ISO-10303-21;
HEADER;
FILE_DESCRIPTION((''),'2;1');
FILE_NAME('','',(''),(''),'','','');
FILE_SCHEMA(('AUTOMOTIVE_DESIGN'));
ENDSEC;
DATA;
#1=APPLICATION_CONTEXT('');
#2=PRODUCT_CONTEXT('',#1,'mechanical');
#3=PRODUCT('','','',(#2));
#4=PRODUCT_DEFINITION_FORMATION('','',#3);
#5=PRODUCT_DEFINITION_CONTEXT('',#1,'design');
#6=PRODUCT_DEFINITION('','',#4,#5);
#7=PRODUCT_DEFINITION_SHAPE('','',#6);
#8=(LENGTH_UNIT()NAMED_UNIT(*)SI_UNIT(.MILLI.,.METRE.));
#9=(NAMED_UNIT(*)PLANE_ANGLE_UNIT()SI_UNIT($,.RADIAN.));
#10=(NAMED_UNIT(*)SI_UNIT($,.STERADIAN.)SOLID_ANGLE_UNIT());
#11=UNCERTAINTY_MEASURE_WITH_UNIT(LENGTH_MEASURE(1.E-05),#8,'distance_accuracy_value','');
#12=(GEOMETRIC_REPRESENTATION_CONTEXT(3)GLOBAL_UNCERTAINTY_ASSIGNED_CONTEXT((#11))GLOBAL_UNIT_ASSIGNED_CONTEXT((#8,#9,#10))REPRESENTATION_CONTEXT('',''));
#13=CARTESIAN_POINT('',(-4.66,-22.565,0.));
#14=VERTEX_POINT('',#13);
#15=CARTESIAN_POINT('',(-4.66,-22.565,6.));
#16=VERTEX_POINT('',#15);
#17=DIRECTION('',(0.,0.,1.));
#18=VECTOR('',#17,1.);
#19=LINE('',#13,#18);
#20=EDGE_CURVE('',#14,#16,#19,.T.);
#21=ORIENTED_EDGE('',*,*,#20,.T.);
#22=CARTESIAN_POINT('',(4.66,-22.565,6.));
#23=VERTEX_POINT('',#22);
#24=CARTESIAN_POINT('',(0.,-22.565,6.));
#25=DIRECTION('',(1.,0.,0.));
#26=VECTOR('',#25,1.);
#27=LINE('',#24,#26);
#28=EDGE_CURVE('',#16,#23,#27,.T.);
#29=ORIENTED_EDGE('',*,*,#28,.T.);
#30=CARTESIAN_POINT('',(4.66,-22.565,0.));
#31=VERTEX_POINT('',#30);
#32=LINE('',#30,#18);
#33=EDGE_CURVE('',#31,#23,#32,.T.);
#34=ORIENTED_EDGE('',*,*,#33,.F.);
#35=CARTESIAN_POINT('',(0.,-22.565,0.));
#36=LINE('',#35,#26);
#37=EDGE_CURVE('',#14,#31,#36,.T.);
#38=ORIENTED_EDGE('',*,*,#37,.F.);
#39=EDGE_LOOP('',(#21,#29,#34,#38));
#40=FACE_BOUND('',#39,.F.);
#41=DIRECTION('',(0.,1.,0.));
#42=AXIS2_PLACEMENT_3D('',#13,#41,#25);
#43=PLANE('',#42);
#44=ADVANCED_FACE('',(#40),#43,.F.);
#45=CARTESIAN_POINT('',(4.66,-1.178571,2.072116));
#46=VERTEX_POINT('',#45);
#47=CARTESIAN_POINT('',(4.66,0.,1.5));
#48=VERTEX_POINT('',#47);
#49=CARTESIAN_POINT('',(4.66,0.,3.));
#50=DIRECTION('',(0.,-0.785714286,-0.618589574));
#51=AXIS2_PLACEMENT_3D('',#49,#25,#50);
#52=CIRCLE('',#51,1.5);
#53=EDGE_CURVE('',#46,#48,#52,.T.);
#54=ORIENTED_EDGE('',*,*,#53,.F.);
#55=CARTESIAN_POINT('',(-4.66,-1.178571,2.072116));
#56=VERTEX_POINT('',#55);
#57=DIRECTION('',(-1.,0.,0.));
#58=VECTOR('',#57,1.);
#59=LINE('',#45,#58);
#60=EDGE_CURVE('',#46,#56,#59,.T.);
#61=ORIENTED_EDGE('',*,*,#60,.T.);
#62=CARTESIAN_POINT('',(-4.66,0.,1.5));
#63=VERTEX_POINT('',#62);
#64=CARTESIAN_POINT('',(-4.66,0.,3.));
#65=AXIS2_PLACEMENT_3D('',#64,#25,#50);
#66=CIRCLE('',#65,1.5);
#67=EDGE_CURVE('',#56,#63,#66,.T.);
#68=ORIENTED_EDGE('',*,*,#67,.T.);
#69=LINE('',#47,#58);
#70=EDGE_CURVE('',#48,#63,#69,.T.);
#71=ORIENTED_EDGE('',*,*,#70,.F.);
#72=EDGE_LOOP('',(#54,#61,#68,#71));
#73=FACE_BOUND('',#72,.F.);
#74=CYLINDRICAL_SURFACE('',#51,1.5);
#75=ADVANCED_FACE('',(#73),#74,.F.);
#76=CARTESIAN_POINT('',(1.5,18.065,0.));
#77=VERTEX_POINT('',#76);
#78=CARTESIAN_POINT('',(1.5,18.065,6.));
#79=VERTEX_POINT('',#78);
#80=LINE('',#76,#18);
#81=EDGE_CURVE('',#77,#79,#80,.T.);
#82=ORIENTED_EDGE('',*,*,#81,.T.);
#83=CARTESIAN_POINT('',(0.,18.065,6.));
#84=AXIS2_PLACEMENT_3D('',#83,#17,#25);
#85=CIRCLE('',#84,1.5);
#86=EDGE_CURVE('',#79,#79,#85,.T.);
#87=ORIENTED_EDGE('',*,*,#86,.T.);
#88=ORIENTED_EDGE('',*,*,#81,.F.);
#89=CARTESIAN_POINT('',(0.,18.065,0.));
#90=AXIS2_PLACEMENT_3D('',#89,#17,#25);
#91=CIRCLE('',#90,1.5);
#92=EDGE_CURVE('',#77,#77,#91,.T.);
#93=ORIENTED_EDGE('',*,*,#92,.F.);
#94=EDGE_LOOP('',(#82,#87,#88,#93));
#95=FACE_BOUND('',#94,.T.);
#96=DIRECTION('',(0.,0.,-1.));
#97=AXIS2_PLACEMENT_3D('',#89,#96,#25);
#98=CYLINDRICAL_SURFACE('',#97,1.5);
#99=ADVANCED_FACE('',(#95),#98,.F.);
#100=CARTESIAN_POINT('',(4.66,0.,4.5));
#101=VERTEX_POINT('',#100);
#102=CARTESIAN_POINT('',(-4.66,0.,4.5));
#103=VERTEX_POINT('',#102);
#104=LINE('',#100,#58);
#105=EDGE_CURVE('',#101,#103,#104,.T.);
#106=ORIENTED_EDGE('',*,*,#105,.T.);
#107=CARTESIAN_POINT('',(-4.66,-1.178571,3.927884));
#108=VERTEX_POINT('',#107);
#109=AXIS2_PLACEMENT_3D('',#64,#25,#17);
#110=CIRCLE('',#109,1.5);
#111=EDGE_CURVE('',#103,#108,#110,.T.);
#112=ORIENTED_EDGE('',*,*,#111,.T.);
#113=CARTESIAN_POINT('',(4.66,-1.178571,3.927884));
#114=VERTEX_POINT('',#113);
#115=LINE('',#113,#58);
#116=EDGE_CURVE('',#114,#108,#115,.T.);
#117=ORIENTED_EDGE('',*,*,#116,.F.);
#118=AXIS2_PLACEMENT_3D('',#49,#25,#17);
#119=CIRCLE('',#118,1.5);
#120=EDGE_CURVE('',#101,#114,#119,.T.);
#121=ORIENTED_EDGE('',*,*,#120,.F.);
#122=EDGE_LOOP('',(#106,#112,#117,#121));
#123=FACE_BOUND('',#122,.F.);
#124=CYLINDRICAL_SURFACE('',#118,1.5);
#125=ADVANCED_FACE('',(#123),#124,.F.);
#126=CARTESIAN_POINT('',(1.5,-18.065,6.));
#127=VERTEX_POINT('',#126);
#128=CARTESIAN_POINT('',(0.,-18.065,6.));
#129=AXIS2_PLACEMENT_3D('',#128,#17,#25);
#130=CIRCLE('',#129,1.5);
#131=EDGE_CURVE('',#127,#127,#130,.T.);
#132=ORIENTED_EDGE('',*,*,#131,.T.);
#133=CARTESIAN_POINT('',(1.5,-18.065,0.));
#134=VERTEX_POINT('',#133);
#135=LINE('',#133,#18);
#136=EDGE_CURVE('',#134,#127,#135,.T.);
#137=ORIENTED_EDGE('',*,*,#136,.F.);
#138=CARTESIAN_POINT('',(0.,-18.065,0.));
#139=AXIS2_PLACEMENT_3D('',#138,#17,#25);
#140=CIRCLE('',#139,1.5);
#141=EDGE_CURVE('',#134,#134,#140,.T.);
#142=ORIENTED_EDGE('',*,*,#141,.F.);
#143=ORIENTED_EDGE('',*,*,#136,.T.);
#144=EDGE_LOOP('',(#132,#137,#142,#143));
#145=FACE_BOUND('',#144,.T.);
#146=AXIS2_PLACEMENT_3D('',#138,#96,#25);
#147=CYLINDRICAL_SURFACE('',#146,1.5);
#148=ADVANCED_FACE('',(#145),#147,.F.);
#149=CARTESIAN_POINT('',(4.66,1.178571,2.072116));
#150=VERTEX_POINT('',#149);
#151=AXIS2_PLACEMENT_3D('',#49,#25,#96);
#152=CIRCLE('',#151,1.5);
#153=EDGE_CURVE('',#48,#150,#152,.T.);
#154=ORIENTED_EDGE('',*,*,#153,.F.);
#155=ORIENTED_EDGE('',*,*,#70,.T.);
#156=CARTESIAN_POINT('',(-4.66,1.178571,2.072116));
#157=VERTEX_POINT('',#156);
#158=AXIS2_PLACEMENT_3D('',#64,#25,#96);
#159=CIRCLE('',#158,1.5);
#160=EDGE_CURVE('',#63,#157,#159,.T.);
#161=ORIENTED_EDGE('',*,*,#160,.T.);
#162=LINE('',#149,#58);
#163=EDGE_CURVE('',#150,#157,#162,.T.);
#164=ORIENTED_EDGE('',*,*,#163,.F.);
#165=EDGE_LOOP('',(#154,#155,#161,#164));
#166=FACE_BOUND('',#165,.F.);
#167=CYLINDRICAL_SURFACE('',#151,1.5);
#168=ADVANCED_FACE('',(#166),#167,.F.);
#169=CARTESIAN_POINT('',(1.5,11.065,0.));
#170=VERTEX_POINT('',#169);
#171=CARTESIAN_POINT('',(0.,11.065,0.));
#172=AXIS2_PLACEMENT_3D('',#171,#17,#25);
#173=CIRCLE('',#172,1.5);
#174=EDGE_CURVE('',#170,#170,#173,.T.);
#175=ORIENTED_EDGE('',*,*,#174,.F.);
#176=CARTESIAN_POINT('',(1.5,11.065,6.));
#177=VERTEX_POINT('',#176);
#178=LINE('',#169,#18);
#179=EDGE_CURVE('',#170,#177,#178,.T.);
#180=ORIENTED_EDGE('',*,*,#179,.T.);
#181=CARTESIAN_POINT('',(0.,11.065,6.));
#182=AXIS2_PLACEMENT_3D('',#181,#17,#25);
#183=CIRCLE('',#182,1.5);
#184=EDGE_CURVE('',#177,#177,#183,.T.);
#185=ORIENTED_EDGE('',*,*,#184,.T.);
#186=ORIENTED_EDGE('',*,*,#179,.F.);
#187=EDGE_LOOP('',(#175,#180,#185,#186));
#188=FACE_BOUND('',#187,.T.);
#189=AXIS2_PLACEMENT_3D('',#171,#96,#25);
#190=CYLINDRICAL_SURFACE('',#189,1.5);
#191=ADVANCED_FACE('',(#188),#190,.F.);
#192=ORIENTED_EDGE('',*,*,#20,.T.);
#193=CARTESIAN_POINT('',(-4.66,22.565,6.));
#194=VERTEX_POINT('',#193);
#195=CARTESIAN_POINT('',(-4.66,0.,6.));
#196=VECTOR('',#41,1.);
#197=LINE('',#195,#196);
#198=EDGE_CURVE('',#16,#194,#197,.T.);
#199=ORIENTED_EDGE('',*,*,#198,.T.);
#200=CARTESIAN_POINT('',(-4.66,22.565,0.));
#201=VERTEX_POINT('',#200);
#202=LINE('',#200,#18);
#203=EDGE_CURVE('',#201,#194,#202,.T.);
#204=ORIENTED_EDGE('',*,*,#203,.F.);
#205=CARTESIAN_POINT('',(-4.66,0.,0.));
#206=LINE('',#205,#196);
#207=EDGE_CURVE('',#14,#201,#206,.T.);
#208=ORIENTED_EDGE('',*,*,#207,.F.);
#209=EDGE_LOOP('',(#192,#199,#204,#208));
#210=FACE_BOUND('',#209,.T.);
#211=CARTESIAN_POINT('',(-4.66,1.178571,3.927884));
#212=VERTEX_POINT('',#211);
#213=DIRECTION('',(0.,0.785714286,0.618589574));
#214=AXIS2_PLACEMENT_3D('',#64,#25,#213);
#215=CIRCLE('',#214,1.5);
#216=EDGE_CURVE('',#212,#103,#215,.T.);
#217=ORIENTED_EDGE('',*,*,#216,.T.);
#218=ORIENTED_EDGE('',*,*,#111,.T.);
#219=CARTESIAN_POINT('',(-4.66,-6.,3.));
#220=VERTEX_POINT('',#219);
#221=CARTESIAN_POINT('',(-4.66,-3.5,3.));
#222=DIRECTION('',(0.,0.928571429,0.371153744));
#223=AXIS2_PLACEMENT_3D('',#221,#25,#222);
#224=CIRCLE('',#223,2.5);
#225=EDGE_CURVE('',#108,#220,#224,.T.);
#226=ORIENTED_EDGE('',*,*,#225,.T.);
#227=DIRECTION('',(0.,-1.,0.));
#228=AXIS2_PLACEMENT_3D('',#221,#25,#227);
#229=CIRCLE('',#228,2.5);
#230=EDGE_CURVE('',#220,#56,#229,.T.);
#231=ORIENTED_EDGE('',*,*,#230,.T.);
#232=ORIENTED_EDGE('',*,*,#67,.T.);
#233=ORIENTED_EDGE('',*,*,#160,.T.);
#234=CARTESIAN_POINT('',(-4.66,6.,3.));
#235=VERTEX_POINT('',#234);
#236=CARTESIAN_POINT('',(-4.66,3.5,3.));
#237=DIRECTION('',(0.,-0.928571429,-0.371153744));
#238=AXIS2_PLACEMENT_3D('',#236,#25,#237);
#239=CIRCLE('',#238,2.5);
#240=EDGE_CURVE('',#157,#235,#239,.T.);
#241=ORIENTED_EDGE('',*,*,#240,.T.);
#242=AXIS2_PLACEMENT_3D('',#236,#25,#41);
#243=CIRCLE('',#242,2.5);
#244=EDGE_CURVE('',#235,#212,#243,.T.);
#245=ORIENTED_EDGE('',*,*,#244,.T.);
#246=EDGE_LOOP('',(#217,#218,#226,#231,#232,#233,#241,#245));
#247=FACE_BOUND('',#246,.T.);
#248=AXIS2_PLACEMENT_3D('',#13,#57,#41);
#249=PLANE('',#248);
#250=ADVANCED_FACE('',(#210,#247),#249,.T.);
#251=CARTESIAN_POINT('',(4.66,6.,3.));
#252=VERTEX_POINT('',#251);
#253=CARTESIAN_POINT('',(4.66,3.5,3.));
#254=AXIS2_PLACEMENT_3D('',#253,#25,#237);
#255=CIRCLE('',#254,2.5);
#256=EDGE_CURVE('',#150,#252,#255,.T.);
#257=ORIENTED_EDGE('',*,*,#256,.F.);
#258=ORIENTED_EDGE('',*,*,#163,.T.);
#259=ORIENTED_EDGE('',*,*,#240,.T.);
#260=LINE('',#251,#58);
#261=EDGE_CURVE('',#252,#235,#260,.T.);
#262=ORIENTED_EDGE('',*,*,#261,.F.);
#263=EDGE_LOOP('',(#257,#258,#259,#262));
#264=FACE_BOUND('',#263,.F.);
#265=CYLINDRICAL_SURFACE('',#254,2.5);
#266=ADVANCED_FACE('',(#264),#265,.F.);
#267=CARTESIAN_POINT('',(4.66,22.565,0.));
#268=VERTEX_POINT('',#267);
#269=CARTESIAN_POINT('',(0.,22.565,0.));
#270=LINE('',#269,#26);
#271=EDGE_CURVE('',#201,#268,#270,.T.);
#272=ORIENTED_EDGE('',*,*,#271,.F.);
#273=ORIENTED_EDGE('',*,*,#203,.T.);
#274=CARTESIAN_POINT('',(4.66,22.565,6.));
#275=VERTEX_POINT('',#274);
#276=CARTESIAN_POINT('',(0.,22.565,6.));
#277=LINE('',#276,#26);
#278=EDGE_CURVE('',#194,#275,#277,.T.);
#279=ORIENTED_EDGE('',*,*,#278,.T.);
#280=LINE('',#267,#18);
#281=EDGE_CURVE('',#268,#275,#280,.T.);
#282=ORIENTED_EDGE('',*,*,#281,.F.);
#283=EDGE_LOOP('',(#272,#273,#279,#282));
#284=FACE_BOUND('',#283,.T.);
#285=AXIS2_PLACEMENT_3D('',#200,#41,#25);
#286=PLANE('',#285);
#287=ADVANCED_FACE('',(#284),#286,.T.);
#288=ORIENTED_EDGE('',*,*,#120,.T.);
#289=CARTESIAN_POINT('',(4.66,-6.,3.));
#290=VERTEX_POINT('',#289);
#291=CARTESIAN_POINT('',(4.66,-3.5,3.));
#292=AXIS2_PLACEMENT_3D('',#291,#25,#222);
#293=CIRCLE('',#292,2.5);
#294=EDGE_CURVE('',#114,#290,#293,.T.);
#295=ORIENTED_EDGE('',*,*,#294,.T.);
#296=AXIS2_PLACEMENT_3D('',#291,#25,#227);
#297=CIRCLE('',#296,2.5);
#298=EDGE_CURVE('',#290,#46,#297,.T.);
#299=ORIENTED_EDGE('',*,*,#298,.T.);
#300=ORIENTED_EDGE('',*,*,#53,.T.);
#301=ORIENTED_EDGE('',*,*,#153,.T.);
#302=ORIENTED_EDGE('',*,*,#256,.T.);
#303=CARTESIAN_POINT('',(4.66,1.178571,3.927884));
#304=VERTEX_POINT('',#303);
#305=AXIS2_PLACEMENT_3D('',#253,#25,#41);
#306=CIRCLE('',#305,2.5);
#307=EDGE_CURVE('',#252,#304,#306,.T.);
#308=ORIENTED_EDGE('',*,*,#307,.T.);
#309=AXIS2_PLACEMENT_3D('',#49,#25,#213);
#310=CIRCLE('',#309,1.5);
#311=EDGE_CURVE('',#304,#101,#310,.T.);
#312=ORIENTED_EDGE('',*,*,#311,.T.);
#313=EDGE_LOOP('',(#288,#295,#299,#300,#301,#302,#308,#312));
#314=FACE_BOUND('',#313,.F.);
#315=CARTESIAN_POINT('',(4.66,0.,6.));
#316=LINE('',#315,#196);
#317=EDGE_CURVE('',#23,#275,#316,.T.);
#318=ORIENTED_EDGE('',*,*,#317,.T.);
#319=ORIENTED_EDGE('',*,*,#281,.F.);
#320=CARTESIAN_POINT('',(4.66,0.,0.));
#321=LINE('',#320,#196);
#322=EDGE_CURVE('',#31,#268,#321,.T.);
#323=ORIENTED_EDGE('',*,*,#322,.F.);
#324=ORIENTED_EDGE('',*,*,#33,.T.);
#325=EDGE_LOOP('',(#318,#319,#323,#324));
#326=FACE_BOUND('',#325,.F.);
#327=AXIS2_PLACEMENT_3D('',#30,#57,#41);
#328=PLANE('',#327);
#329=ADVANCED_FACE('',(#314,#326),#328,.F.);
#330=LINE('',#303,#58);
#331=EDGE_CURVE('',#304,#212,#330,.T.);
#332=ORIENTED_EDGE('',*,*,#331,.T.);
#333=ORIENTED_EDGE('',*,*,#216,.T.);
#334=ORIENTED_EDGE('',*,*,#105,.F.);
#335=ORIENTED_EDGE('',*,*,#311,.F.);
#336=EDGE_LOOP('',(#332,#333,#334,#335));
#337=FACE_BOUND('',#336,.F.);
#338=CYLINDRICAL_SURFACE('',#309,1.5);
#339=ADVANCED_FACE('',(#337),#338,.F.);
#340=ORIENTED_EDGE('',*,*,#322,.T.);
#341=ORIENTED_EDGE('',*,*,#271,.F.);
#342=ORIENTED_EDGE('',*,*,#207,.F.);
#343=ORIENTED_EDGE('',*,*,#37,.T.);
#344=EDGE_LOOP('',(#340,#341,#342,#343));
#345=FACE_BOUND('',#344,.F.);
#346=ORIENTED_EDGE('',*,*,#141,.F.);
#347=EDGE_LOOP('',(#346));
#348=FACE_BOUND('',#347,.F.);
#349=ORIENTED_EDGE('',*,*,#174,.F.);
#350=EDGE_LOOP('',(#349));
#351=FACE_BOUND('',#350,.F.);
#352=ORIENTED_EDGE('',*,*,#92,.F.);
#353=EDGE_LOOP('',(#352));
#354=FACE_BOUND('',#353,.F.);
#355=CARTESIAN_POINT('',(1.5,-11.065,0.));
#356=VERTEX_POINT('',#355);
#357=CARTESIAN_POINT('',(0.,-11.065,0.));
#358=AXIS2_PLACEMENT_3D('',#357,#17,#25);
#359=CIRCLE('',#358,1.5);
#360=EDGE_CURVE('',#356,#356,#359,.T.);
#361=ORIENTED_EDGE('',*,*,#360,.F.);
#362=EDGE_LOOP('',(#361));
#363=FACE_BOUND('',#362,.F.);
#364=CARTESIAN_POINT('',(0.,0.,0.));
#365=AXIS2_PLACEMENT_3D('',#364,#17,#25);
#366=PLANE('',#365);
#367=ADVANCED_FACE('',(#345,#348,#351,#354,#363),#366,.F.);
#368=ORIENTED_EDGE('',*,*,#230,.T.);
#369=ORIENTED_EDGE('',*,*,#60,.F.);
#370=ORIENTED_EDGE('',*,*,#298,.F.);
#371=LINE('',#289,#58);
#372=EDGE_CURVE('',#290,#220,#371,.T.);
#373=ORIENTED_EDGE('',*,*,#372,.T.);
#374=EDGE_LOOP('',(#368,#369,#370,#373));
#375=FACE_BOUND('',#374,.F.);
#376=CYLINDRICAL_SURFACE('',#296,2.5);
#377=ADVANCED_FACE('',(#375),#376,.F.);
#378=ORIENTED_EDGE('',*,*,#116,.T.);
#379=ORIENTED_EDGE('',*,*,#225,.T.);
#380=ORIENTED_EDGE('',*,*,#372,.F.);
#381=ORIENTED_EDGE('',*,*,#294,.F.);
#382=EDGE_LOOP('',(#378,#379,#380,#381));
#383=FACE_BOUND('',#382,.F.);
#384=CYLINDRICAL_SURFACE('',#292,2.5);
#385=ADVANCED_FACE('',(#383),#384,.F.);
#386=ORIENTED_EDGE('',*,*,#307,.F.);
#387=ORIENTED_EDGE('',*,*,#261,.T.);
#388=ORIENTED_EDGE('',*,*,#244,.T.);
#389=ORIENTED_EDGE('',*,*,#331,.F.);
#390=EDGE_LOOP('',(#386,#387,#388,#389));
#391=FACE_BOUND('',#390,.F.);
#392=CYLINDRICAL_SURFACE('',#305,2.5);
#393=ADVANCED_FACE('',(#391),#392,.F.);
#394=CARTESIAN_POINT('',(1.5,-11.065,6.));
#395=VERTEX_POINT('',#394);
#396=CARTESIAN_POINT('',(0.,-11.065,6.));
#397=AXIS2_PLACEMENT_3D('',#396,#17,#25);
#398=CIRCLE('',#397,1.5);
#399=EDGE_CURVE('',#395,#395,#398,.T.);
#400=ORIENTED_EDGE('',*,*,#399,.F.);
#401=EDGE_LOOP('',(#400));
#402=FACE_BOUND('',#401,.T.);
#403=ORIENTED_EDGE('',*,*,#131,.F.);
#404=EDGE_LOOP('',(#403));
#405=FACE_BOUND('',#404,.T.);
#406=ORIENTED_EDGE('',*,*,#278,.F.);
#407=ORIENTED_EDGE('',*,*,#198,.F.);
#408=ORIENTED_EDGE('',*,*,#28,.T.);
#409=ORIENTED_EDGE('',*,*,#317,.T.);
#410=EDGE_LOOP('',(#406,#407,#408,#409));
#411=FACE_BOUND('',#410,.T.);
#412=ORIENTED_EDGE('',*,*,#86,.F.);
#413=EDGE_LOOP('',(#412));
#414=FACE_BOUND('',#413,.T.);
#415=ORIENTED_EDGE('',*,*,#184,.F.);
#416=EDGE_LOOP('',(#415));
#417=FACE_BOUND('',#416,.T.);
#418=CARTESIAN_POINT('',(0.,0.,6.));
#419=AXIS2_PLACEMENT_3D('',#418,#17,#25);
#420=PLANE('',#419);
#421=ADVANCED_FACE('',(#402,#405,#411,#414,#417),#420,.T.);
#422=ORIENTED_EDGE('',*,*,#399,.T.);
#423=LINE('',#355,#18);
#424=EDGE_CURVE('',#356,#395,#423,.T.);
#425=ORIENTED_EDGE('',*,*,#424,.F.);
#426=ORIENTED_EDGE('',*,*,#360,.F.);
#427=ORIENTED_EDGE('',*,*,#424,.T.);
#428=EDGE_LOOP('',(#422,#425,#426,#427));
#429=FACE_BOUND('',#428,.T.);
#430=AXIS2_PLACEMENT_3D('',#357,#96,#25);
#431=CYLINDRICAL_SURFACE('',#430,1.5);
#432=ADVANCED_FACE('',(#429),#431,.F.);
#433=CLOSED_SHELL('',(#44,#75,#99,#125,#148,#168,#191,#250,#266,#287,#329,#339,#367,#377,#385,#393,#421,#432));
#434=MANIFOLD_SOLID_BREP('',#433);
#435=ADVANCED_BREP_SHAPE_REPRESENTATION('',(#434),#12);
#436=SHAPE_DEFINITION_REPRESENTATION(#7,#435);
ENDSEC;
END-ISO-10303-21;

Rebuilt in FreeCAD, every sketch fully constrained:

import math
import FreeCAD as App
import Part
import Sketcher
from FreeCAD import Vector
Q = App.Units.Quantity

doc = App.newDocument("Part")
body = doc.addObject("PartDesign::Body", "Body")

# Sketch on XY plane
sketch1 = body.newObject("Sketcher::SketchObject", "Sketch")
sketch1.AttachmentSupport = (doc.getObject("XY_Plane"), [""])
sketch1.MapMode = "FlatFace"
sketch1.addGeometry([
    Part.LineSegment(Vector(-4.7, 22.6, 0), Vector(-4.7, -22.6, 0)),  # 0
    Part.LineSegment(Vector(-4.7, -22.6, 0), Vector(4.7, -22.6, 0)),  # 1
    Part.LineSegment(Vector(4.7, -22.6, 0), Vector(4.7, 22.6, 0)),  # 2
    Part.LineSegment(Vector(4.7, 22.6, 0), Vector(-4.7, 22.6, 0)),  # 3
    Part.Circle(Vector(0, -18.1, 0), Vector(0, 0, 1), 1.5),  # 4
    Part.Circle(Vector(0, -11.1, 0), Vector(0, 0, 1), 1.5),  # 5
    Part.Circle(Vector(0, 11.1, 0), Vector(0, 0, 1), 1.5),  # 6
    Part.Circle(Vector(0, 18.1, 0), Vector(0, 0, 1), 1.5),  # 7
], False)
sketch1.addConstraint([
    Sketcher.Constraint("Coincident", 0, 2, 1, 1),
    Sketcher.Constraint("Coincident", 1, 2, 2, 1),
    Sketcher.Constraint("Coincident", 2, 2, 3, 1),
    Sketcher.Constraint("Coincident", 3, 2, 0, 1),
    Sketcher.Constraint("Vertical", 0),
    Sketcher.Constraint("Horizontal", 1),
    Sketcher.Constraint("Vertical", 2),
    Sketcher.Constraint("Horizontal", 3),
    Sketcher.Constraint("Equal", 4, 5),
    Sketcher.Constraint("Equal", 5, 6),
    Sketcher.Constraint("Equal", 6, 7),
    Sketcher.Constraint("Symmetric", 5, 3, 6, 3, -1, 1),
    Sketcher.Constraint("Symmetric", 4, 3, 7, 3, -1, 1),
    Sketcher.Constraint("Symmetric", 0, 2, 2, 2, -1, 1),
    Sketcher.Constraint("PointOnObject", 4, 3, -2),
    Sketcher.Constraint("PointOnObject", 5, 3, -2),
    Sketcher.Constraint("Diameter", 4, Q("3 mm")),
    Sketcher.Constraint("DistanceY", 4, 3, 5, 3, Q("7 mm")),
    Sketcher.Constraint("DistanceX", 1, 1, 1, 2, Q("9.32 mm")),
    Sketcher.Constraint("DistanceY", 0, 2, 0, 1, Q("45.13 mm")),
    Sketcher.Constraint("DistanceY", 0, 2, 4, 3, Q("4.5 mm")),
])
pad1 = body.newObject("PartDesign::Pad", "Pad")
pad1.Profile = sketch1
pad1.Length = 6

# Sketch on YZ plane
sketch2 = body.newObject("Sketcher::SketchObject", "Sketch001")
sketch2.AttachmentSupport = (doc.getObject("YZ_Plane"), [""])
sketch2.MapMode = "FlatFace"
sketch2.AttachmentOffset = App.Placement(Vector(0, 0, 4.66), App.Rotation())
sketch2.addGeometry([
    Part.ArcOfCircle(Part.Circle(Vector(3.5, 3, 0), Vector(0, 0, 1), 2.5), math.radians(-158), math.radians(0)),  # 0
    Part.ArcOfCircle(Part.Circle(Vector(3.5, 3, 0), Vector(0, 0, 1), 2.5), math.radians(0), math.radians(158)),  # 1
    Part.ArcOfCircle(Part.Circle(Vector(0, 3, 0), Vector(0, 0, 1), 1.5), math.radians(38), math.radians(90)),  # 2
    Part.ArcOfCircle(Part.Circle(Vector(0, 3, 0), Vector(0, 0, 1), 1.5), math.radians(90), math.radians(142)),  # 3
    Part.ArcOfCircle(Part.Circle(Vector(-3.5, 3, 0), Vector(0, 0, 1), 2.5), math.radians(22), math.radians(180)),  # 4
    Part.ArcOfCircle(Part.Circle(Vector(-3.5, 3, 0), Vector(0, 0, 1), 2.5), math.radians(180), math.radians(338)),  # 5
    Part.ArcOfCircle(Part.Circle(Vector(0, 3, 0), Vector(0, 0, 1), 1.5), math.radians(-142), math.radians(-90)),  # 6
    Part.ArcOfCircle(Part.Circle(Vector(0, 3, 0), Vector(0, 0, 1), 1.5), math.radians(-90), math.radians(-38)),  # 7
], False)
sketch2.addConstraint([
    Sketcher.Constraint("Tangent", 0, 2, 1, 1),
    Sketcher.Constraint("Coincident", 1, 2, 2, 1),
    Sketcher.Constraint("Tangent", 2, 2, 3, 1),
    Sketcher.Constraint("Coincident", 3, 2, 4, 1),
    Sketcher.Constraint("Tangent", 4, 2, 5, 1),
    Sketcher.Constraint("Coincident", 5, 2, 6, 1),
    Sketcher.Constraint("Tangent", 6, 2, 7, 1),
    Sketcher.Constraint("Coincident", 7, 2, 0, 1),
    Sketcher.Constraint("Coincident", 6, 3, 2, 3),
    Sketcher.Constraint("Equal", 0, 1),
    Sketcher.Constraint("Equal", 2, 3),
    Sketcher.Constraint("Equal", 1, 4),
    Sketcher.Constraint("Equal", 4, 5),
    Sketcher.Constraint("Equal", 3, 6),
    Sketcher.Constraint("Equal", 6, 7),
    Sketcher.Constraint("Symmetric", 0, 3, 4, 3, -2),
    Sketcher.Constraint("PointOnObject", 2, 3, -2),
    Sketcher.Constraint("PointOnObject", 2, 2, -2),
    Sketcher.Constraint("PointOnObject", 6, 2, -2),
    Sketcher.Constraint("Horizontal", 1, 3, 2, 3),
    Sketcher.Constraint("Horizontal", 7, 3, 0, 2),
    Sketcher.Constraint("Horizontal", 0, 2, 4, 2),
    Sketcher.Constraint("Radius", 0, Q("2.5 mm")),
    Sketcher.Constraint("Radius", 2, Q("1.5 mm")),
    Sketcher.Constraint("DistanceY", -1, 1, 0, 3, Q("3 mm")),
    Sketcher.Constraint("DistanceX", -1, 1, 0, 2, Q("6 mm")),
])
pocket1 = body.newObject("PartDesign::Pocket", "Pocket")
pocket1.Profile = sketch2
pocket1.Type = "ThroughAll"

doc.recompute()
